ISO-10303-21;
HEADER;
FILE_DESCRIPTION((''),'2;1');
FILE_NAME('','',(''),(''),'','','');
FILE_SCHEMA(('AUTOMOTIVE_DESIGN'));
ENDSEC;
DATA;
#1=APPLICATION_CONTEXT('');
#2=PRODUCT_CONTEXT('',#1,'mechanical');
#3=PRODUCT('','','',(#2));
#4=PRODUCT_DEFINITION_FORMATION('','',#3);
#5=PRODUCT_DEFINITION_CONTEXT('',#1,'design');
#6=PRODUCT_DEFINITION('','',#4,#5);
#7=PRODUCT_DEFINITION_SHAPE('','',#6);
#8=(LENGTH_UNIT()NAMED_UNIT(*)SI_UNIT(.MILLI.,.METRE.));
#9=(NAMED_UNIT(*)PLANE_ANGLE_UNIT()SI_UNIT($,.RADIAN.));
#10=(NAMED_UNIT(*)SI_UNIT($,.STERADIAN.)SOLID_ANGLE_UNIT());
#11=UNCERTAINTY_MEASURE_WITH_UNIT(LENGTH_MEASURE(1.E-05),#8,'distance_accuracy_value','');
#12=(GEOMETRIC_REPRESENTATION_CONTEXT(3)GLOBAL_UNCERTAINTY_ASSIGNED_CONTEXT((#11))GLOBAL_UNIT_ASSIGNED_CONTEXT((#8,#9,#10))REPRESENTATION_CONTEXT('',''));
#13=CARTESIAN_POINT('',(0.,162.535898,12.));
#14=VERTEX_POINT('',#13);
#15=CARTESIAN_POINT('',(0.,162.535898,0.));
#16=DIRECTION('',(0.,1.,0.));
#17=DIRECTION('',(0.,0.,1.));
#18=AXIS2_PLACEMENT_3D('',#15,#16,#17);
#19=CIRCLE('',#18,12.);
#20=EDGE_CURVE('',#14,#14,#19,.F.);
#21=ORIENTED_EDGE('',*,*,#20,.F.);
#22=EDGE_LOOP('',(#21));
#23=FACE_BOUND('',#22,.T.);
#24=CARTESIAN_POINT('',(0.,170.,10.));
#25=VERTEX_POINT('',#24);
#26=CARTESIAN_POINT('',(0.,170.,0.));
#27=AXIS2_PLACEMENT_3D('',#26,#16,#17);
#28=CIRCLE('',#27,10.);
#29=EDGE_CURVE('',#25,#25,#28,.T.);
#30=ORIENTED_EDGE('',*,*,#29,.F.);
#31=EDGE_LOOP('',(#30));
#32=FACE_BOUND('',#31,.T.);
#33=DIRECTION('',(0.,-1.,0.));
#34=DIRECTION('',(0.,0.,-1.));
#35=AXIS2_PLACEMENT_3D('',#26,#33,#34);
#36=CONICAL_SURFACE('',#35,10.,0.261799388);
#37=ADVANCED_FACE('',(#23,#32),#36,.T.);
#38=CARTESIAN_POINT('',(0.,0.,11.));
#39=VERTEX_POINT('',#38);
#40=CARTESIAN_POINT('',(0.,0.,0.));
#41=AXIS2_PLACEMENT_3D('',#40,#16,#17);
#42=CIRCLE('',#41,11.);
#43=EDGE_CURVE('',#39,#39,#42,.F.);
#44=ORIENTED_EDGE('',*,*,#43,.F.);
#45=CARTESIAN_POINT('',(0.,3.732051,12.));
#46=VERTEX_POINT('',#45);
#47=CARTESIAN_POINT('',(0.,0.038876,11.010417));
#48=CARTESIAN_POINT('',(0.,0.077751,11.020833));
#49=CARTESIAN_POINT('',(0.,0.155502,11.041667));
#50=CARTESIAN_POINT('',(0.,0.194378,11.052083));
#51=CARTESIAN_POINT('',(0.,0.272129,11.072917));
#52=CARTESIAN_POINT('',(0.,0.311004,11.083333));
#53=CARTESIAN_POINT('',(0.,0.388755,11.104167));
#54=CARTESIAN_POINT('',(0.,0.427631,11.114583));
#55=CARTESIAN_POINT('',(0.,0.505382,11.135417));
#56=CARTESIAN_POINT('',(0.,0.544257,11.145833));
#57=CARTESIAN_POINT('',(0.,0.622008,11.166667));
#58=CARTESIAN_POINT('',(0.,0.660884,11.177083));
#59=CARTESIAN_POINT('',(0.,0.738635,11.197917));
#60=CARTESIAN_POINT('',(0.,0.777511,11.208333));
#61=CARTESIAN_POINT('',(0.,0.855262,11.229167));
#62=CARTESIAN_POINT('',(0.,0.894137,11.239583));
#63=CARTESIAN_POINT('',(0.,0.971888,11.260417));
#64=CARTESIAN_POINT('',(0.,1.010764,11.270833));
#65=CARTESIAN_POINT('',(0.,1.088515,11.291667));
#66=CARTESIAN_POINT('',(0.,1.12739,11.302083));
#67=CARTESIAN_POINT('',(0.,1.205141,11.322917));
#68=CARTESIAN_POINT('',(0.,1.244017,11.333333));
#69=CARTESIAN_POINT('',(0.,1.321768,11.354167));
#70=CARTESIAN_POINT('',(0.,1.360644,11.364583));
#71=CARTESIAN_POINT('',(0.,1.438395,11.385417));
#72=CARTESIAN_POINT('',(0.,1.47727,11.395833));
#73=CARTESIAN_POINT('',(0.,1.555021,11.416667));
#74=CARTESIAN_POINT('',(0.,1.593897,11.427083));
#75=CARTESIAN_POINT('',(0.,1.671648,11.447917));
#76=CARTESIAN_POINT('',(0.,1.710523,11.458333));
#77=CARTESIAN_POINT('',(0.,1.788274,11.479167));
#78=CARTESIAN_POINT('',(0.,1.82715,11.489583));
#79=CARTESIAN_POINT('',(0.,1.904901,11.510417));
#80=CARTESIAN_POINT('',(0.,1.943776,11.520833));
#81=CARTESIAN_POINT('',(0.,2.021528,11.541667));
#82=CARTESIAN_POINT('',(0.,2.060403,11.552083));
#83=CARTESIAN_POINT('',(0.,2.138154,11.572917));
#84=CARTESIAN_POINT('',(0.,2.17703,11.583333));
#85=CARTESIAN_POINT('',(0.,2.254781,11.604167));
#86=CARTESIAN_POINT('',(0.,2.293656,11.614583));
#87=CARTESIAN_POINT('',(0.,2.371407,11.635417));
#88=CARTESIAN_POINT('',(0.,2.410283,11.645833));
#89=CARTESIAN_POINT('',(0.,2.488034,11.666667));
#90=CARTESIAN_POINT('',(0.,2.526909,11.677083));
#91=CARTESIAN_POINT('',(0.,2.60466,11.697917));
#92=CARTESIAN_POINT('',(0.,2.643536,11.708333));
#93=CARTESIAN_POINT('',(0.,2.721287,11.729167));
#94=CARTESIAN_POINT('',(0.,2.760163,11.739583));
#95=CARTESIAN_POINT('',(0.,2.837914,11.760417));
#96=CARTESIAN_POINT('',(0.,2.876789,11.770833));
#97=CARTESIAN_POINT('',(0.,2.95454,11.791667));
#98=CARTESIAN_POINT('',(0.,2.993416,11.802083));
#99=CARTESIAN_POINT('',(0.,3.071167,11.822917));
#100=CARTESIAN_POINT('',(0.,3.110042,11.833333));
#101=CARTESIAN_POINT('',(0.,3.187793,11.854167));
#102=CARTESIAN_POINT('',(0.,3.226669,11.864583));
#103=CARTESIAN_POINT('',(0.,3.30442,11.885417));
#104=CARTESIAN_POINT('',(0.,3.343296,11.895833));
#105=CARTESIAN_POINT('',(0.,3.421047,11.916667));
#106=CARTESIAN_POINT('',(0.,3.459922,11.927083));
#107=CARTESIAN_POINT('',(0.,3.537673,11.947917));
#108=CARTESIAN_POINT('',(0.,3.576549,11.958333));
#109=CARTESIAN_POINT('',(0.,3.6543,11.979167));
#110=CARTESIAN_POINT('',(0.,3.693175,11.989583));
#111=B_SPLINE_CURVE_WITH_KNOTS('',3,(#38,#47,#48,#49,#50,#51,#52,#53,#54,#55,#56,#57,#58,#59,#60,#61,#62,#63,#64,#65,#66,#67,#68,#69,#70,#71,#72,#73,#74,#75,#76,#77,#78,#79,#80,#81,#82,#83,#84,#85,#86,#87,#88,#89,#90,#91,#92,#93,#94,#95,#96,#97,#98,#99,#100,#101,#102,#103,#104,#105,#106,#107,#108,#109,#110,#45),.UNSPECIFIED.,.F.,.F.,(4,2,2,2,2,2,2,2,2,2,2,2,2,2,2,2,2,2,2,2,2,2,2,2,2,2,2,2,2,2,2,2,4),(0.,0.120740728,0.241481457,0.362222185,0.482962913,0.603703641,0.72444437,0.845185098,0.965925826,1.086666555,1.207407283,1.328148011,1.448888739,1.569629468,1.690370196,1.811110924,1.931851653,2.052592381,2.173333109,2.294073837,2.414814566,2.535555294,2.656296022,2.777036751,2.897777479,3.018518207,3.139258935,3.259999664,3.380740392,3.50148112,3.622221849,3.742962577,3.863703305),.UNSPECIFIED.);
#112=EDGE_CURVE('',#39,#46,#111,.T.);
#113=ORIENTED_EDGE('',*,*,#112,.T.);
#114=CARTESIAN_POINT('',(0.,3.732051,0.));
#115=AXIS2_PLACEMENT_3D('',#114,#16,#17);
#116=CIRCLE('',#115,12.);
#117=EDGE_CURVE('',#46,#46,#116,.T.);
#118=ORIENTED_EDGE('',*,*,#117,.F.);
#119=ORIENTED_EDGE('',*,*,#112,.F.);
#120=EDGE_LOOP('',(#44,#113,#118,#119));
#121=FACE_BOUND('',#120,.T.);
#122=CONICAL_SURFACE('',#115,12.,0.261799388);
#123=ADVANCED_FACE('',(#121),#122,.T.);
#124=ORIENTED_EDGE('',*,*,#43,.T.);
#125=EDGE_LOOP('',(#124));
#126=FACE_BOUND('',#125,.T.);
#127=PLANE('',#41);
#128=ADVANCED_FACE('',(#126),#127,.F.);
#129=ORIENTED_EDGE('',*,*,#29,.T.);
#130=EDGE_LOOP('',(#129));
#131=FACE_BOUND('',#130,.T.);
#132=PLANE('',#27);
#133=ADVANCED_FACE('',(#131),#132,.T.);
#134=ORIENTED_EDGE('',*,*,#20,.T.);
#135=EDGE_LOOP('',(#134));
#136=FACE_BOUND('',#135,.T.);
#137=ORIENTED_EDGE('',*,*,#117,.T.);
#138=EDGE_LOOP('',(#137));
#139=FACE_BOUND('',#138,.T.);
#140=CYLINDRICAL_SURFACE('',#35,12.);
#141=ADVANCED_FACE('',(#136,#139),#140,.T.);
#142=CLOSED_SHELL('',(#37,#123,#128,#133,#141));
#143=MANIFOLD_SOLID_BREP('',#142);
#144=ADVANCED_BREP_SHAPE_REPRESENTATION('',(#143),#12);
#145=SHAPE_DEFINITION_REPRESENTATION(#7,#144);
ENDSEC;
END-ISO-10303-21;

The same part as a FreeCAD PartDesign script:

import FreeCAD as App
import Part
import Sketcher
from FreeCAD import Vector
Q = App.Units.Quantity


def edges_at(feature, points):
    """Names of the edges that pass closest to the given points."""
    edges = feature.Shape.Edges
    near = lambda p: min(range(len(edges)), key=lambda i: edges[i].distToShape(Part.Vertex(*p))[0])
    return sorted({f"Edge{near(p) + 1}" for p in points})

doc = App.newDocument("Part")
body = doc.addObject("PartDesign::Body", "Body")

# Sketch on XZ plane
sketch1 = doc.addObject("Sketcher::SketchObject", "Sketch")
body.addObject(sketch1)
sketch1.AttachmentSupport = (doc.XZ_Plane, [""])
sketch1.MapMode = "FlatFace"
sketch1.addGeometry(Part.Circle(Vector(0, 0, 0), Vector(0, 0, 1), 12), False)
sketch1.addConstraint(Sketcher.Constraint("Coincident", 0, 3, -1, 1))
sketch1.addConstraint(Sketcher.Constraint("Diameter", 0, Q("24 mm")))
pad1 = doc.addObject("PartDesign::Pad", "Pad")
body.addObject(pad1)
pad1.Profile = sketch1
pad1.Length = 170
pad1.Reversed = True
doc.recompute()

chamfer = doc.addObject("PartDesign::Chamfer", "Chamfer")
body.addObject(chamfer)
chamfer.Base = (pad1, edges_at(pad1, [(0, 170, -12)]))
chamfer.ChamferType = "Two distances"
chamfer.Size = 2
chamfer.Size2 = 7.464102
chamfer.FlipDirection = True
doc.recompute()

chamfer2 = doc.addObject("PartDesign::Chamfer", "Chamfer001")
body.addObject(chamfer2)
chamfer2.Base = (chamfer, edges_at(chamfer, [(0, 0, -12)]))
chamfer2.ChamferType = "Two distances"
chamfer2.Size = 1
chamfer2.Size2 = 3.732051
chamfer2.FlipDirection = True

doc.recompute()
